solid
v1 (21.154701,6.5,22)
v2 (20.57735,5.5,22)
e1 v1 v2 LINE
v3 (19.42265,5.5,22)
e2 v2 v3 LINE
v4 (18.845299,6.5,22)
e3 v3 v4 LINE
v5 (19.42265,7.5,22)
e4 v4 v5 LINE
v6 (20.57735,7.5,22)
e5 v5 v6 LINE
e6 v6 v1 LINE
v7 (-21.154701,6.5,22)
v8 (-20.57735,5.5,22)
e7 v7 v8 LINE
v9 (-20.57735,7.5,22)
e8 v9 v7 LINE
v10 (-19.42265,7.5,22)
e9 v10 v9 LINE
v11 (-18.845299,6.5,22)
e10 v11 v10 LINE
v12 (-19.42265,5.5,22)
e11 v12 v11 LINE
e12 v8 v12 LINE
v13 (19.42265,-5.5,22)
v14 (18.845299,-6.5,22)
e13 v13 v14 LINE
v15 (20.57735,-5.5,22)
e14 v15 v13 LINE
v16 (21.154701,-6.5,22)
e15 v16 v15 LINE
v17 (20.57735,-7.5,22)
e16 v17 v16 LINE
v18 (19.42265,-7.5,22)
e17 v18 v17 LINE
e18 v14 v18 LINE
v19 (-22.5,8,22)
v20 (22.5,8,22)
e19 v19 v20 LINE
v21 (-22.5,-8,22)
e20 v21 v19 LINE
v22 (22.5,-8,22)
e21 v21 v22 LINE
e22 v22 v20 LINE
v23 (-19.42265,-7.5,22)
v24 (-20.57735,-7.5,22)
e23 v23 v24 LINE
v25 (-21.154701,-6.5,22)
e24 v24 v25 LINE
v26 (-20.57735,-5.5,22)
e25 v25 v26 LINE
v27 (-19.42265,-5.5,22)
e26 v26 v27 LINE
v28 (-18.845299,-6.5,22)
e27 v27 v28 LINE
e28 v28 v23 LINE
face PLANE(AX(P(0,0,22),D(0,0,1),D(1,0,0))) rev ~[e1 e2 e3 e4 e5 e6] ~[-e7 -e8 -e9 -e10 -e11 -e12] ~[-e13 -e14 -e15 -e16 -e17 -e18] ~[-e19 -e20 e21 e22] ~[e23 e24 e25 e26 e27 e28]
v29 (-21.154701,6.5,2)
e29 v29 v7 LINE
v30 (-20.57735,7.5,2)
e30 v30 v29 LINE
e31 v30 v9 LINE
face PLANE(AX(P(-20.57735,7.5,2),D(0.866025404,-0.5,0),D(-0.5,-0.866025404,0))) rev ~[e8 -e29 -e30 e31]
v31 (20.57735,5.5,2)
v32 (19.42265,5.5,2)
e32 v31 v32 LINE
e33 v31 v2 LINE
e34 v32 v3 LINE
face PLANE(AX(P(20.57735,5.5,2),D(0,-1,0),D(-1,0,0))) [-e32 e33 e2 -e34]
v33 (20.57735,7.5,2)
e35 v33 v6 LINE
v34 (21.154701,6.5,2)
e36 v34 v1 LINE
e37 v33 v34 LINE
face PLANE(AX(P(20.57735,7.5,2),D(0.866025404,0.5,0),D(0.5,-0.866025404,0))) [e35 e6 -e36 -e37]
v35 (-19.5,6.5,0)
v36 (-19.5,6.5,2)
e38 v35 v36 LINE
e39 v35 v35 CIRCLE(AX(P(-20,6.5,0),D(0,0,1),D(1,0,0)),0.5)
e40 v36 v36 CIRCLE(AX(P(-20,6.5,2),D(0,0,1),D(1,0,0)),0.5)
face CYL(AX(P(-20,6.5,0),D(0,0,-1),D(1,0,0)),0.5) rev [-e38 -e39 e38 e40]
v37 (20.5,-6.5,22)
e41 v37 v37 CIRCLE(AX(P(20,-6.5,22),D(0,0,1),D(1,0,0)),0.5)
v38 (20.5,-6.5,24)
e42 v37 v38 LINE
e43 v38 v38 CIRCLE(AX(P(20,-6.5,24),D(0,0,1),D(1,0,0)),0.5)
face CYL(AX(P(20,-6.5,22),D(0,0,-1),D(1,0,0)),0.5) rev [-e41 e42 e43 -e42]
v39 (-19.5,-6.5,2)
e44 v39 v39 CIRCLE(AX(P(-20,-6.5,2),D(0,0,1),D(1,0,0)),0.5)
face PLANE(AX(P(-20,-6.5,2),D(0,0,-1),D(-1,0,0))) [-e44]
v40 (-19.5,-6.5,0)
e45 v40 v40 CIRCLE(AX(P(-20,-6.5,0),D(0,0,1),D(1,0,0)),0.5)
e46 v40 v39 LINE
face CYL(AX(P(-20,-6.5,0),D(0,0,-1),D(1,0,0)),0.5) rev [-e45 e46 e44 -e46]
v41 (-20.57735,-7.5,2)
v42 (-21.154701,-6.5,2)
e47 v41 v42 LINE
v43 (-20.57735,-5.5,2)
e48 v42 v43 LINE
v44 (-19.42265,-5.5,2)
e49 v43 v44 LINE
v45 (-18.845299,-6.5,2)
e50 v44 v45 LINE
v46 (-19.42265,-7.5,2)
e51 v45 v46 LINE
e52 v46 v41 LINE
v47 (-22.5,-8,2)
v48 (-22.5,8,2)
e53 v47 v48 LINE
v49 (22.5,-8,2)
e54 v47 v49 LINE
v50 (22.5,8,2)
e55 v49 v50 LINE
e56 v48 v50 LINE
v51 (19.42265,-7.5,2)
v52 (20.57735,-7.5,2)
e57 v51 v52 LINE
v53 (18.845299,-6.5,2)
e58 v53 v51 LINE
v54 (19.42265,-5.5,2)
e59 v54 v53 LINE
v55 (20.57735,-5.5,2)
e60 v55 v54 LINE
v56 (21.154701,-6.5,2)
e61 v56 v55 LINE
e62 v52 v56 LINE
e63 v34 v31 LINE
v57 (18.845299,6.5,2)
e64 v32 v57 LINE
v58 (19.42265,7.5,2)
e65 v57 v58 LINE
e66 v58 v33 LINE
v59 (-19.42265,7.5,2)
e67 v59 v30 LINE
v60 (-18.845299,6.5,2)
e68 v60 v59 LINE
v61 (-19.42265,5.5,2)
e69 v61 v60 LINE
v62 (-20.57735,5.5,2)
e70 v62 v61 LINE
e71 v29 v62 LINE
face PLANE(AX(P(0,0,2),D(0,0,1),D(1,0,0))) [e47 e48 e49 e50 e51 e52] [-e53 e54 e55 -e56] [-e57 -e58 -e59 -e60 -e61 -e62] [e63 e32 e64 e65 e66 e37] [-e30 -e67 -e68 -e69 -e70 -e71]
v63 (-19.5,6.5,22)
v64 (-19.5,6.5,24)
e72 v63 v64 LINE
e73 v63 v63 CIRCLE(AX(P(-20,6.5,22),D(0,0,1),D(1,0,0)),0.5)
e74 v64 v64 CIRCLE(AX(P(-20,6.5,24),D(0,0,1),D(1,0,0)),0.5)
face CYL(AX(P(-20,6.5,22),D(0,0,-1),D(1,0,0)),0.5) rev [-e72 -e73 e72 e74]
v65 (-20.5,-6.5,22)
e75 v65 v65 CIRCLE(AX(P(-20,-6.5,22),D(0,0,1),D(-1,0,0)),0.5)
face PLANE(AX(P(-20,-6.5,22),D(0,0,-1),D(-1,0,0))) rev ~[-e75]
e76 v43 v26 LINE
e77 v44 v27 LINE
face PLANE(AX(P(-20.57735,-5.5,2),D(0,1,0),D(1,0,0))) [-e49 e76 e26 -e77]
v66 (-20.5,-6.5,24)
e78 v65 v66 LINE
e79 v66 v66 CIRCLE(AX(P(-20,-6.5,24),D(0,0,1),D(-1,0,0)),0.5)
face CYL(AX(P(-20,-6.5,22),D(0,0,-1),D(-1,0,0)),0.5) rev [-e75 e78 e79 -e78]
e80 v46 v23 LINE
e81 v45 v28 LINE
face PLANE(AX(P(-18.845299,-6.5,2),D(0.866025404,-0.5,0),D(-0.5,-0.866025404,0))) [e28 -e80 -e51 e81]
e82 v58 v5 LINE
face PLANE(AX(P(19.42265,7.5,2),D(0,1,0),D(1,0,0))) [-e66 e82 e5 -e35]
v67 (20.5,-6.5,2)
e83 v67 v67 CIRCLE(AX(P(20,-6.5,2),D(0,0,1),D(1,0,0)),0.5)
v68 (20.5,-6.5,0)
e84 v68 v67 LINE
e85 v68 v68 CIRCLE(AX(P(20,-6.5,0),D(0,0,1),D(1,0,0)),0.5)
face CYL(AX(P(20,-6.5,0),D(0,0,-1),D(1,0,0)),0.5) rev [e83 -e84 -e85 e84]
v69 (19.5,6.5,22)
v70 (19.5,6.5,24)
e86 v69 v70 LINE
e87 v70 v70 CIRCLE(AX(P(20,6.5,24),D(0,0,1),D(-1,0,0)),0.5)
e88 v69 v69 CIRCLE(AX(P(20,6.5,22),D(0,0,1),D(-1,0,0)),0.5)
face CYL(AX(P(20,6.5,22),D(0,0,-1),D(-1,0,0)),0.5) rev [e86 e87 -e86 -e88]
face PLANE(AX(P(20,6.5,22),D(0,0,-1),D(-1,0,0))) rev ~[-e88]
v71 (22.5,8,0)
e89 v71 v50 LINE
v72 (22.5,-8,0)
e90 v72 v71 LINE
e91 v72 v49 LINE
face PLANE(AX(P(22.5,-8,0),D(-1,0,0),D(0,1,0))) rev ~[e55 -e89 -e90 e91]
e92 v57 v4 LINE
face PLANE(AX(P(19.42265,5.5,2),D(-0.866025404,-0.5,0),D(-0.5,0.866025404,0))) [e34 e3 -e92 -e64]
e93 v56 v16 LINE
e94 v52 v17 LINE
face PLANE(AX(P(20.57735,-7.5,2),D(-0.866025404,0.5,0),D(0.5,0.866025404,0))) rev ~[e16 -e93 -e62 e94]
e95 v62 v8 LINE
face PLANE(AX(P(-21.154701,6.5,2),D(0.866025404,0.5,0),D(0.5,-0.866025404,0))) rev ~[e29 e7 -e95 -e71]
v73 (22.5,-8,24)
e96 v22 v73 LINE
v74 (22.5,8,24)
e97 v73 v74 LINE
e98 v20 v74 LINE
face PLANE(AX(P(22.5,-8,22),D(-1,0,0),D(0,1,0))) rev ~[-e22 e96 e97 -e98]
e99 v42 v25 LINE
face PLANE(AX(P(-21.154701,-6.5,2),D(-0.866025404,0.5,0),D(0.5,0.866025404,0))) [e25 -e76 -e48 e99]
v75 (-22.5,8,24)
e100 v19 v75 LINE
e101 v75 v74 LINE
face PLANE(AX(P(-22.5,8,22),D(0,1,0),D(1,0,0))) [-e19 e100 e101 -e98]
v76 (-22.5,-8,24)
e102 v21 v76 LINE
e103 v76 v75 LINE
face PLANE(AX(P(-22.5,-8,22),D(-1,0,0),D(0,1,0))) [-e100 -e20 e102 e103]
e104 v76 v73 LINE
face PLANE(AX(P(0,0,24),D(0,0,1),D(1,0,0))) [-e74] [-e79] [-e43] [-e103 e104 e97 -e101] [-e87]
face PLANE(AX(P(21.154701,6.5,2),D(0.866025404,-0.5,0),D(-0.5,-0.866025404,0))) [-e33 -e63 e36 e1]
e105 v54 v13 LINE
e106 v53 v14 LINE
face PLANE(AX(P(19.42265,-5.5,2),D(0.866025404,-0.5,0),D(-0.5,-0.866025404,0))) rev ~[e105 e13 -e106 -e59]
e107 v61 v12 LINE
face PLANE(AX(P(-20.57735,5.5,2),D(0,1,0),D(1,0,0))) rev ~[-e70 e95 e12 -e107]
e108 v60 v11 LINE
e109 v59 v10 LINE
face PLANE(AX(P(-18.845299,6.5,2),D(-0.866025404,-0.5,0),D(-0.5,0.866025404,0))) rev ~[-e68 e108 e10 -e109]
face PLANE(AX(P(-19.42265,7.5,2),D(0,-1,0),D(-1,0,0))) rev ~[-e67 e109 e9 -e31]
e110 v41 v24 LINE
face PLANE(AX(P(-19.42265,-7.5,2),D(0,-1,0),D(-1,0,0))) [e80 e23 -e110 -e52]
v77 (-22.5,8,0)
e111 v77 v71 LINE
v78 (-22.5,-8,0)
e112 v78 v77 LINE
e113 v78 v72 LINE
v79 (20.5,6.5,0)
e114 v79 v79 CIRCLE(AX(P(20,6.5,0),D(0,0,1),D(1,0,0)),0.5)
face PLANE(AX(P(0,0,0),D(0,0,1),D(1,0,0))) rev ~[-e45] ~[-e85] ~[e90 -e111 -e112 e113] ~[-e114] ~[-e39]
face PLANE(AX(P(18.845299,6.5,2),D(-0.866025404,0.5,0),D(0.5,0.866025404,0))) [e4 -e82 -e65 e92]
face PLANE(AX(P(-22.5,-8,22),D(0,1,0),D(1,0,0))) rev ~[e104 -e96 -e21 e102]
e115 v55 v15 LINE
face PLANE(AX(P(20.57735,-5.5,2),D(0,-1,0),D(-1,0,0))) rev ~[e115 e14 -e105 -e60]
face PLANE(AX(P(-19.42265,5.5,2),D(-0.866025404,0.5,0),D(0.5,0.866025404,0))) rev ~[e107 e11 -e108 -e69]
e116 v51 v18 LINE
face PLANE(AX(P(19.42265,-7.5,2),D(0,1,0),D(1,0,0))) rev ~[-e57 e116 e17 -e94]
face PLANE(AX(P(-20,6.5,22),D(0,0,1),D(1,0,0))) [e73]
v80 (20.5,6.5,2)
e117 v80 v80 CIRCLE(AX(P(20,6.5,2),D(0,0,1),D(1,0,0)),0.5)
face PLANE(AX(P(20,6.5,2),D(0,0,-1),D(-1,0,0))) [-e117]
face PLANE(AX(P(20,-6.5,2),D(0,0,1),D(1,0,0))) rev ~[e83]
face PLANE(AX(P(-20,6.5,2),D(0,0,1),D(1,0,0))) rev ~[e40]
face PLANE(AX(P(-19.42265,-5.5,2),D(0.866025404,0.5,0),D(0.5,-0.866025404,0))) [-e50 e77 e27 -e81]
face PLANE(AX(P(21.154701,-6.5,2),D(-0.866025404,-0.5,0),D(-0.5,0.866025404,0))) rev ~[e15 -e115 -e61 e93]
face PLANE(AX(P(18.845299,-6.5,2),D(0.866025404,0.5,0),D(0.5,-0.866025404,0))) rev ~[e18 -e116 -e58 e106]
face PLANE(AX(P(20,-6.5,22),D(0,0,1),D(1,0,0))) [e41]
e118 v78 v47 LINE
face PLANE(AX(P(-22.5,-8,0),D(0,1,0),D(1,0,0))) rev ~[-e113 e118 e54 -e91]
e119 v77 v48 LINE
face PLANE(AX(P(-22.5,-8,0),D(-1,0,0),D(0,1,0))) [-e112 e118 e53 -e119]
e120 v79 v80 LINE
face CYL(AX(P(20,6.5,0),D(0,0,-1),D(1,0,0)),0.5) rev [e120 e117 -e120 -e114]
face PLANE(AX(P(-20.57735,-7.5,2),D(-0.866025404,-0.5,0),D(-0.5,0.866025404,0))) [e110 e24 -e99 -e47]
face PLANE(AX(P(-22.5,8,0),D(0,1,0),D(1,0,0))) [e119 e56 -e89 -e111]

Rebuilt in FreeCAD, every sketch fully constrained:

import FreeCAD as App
import Part
import Sketcher
from FreeCAD import Vector
Q = App.Units.Quantity


def add_polygon(sketch, points):
    """Adds a closed chain of lines whose ends are joined by coincident constraints."""
    first, n = sketch.GeometryCount, len(points)
    for a, b in zip(points, points[1:] + points[:1]):
        sketch.addGeometry(Part.LineSegment(App.Vector(*a, 0), App.Vector(*b, 0)), False)
    for i in range(n):
        sketch.addConstraint(Sketcher.Constraint("Coincident", first + i, 2, first + (i + 1) % n, 1))

doc = App.newDocument("Part")
params = doc.addObject("Spreadsheet::Sheet", "Params")
for row, (alias, value) in enumerate([
    ("sketch1_diameter", "1 mm"),
    ("sketch1_width", "45 mm"),
    ("sketch1_height", "16 mm"),
    ("pad1_length", "2 mm"),
    ("pad2_length", "20 mm"),
    ("sketch3_diameter", "1 mm"),
    ("sketch3_width", "45 mm"),
    ("sketch3_height", "16 mm"),
    ("pad3_length", "2 mm"),
], start=1):
    params.set(f"A{row}", alias)
    params.set(f"B{row}", "=" + value)
    params.setAlias(f"B{row}", alias)

body = doc.addObject("PartDesign::Body", "Body")

# Sketch on XY plane
sketch1 = body.newObject("Sketcher::SketchObject", "Sketch")
sketch1.AttachmentSupport = (doc.getObject("XY_Plane"), [""])
sketch1.MapMode = "FlatFace"
add_polygon(sketch1, [(-22.5, 8), (-22.5, -8), (22.5, -8), (22.5, 8)])  # lines 0-3
sketch1.addGeometry(Part.Circle(Vector(-20, -6.5, 0), Vector(0, 0, 1), 0.5), False)  # 4
sketch1.addGeometry(Part.Circle(Vector(20, -6.5, 0), Vector(0, 0, 1), 0.5), False)  # 5
sketch1.addGeometry(Part.Circle(Vector(-20, 6.5, 0), Vector(0, 0, 1), 0.5), False)  # 6
sketch1.addGeometry(Part.Circle(Vector(20, 6.5, 0), Vector(0, 0, 1), 0.5), False)  # 7
sketch1.addConstraint(Sketcher.Constraint("Vertical", 0))
sketch1.addConstraint(Sketcher.Constraint("Horizontal", 1))
sketch1.addConstraint(Sketcher.Constraint("Vertical", 2))
sketch1.addConstraint(Sketcher.Constraint("Horizontal", 3))
sketch1.addConstraint(Sketcher.Constraint("Equal", 4, 5))
sketch1.addConstraint(Sketcher.Constraint("Equal", 5, 6))
sketch1.addConstraint(Sketcher.Constraint("Equal", 6, 7))
sketch1.addConstraint(Sketcher.Constraint("Symmetric", 5, 3, 6, 3, -1, 1))
sketch1.addConstraint(Sketcher.Constraint("Symmetric", 4, 3, 7, 3, -1, 1))
sketch1.addConstraint(Sketcher.Constraint("Symmetric", 0, 2, 2, 2, -1, 1))
sketch1.addConstraint(Sketcher.Constraint("Symmetric", 4, 3, 5, 3, -2))
sketch1.addConstraint(Sketcher.Constraint("Diameter", 4, 1.0))
sketch1.addConstraint(Sketcher.Constraint("DistanceX", 1, 1, 1, 2, 45.0))
sketch1.addConstraint(Sketcher.Constraint("DistanceY", 0, 2, 0, 1, 16.0))
sketch1.addConstraint(Sketcher.Constraint("DistanceX", 4, 3, -1, 1, 20.0))
sketch1.addConstraint(Sketcher.Constraint("DistanceY", 4, 3, 6, 3, 13.0))
sketch1.setExpression("Constraints[15]", "Params.sketch1_diameter")
sketch1.setExpression("Constraints[16]", "Params.sketch1_width")
sketch1.setExpression("Constraints[17]", "Params.sketch1_height")
pad1 = body.newObject("PartDesign::Pad", "Pad")
pad1.Profile = sketch1
pad1.setExpression("Length", "Params.pad1_length")

# Sketch on XY plane
sketch2 = body.newObject("Sketcher::SketchObject", "Sketch001")
sketch2.AttachmentSupport = (doc.getObject("XY_Plane"), [""])
sketch2.MapMode = "FlatFace"
sketch2.AttachmentOffset = App.Placement(Vector(0, 0, 2), App.Rotation())
add_polygon(sketch2, [(-18.845299, 6.5), (-19.42265, 7.5), (-20.57735, 7.5), (-21.154701, 6.5), (-20.57735, 5.5), (-19.42265, 5.5)])  # lines 0-5
add_polygon(sketch2, [(18.845299, 6.5), (19.42265, 5.5), (20.57735, 5.5), (21.154701, 6.5), (20.57735, 7.5), (19.42265, 7.5)])  # lines 6-11
add_polygon(sketch2, [(18.845299, -6.5), (19.42265, -7.5), (20.57735, -7.5), (21.154701, -6.5), (20.57735, -5.5), (19.42265, -5.5)])  # lines 12-17
add_polygon(sketch2, [(-18.845299, -6.5), (-19.42265, -5.5), (-20.57735, -5.5), (-21.154701, -6.5), (-20.57735, -7.5), (-19.42265, -7.5)])  # lines 18-23
sketch2.addConstraint(Sketcher.Constraint("Horizontal", 1))
sketch2.addConstraint(Sketcher.Constraint("Horizontal", 4))
sketch2.addConstraint(Sketcher.Constraint("Horizontal", 7))
sketch2.addConstraint(Sketcher.Constraint("Horizontal", 10))
sketch2.addConstraint(Sketcher.Constraint("Horizontal", 13))
sketch2.addConstraint(Sketcher.Constraint("Horizontal", 16))
sketch2.addConstraint(Sketcher.Constraint("Horizontal", 19))
sketch2.addConstraint(Sketcher.Constraint("Horizontal", 22))
sketch2.addConstraint(Sketcher.Constraint("Symmetric", 0, 2, 12, 2, -1, 1))
sketch2.addConstraint(Sketcher.Constraint("Symmetric", 2, 2, 14, 2, -1, 1))
sketch2.addConstraint(Sketcher.Constraint("Symmetric", 3, 2, 15, 2, -1, 1))
sketch2.addConstraint(Sketcher.Constraint("Symmetric", 5, 2, 17, 2, -1, 1))
sketch2.addConstraint(Sketcher.Constraint("Symmetric", 6, 2, 18, 2, -1, 1))
sketch2.addConstraint(Sketcher.Constraint("Symmetric", 8, 2, 20, 2, -1, 1))
sketch2.addConstraint(Sketcher.Constraint("Symmetric", 9, 2, 21, 2, -1, 1))
sketch2.addConstraint(Sketcher.Constraint("Symmetric", 11, 2, 23, 2, -1, 1))
sketch2.addConstraint(Sketcher.Constraint("Symmetric", 4, 2, 6, 2, -2))
sketch2.addConstraint(Sketcher.Constraint("Symmetric", 2, 2, 8, 2, -2))
sketch2.addConstraint(Sketcher.Constraint("Symmetric", 1, 2, 9, 2, -2))
sketch2.addConstraint(Sketcher.Constraint("Symmetric", 5, 2, 11, 2, -2))
sketch2.addConstraint(Sketcher.Constraint("Parallel", 0, 3))
sketch2.addConstraint(Sketcher.Constraint("Parallel", 2, 5))
sketch2.addConstraint(Sketcher.Constraint("Parallel", 3, 6))
sketch2.addConstraint(Sketcher.Constraint("Parallel", 5, 8))
sketch2.addConstraint(Sketcher.Constraint("Parallel", 8, 11))
sketch2.addConstraint(Sketcher.Constraint("Parallel", 11, 14))
sketch2.addConstraint(Sketcher.Constraint("Parallel", 14, 17))
sketch2.addConstraint(Sketcher.Constraint("Parallel", 17, 20))
sketch2.addConstraint(Sketcher.Constraint("Parallel", 20, 23))
sketch2.addConstraint(Sketcher.Constraint("Horizontal", 2, 2, 5, 2))
sketch2.addConstraint(Sketcher.Constraint("Vertical", 1, 2, 3, 2))
sketch2.addConstraint(Sketcher.Constraint("Angle", 0, Q("120 deg")))
sketch2.addConstraint(Sketcher.Constraint("DistanceY", 2, 2, 1, 2, 1.0))
sketch2.addConstraint(Sketcher.Constraint("DistanceX", 3, 2, 6, 2, 40.0))
sketch2.addConstraint(Sketcher.Constraint("DistanceY", 12, 2, 6, 2, 13.0))
sketch2.addConstraint(Sketcher.Constraint("DistanceX", 1, 2, 1, 1, 1.154701))
pad2 = body.newObject("PartDesign::Pad", "Pad001")
pad2.Profile = sketch2
pad2.setExpression("Length", "Params.pad2_length")

# Sketch on XY plane
sketch3 = body.newObject("Sketcher::SketchObject", "Sketch002")
sketch3.AttachmentSupport = (doc.getObject("XY_Plane"), [""])
sketch3.MapMode = "FlatFace"
sketch3.AttachmentOffset = App.Placement(Vector(0, 0, 22), App.Rotation())
add_polygon(sketch3, [(-22.5, 8), (-22.5, -8), (22.5, -8), (22.5, 8)])  # lines 0-3
sketch3.addGeometry(Part.Circle(Vector(-20, -6.5, 0), Vector(0, 0, 1), 0.5), False)  # 4
sketch3.addGeometry(Part.Circle(Vector(20, -6.5, 0), Vector(0, 0, 1), 0.5), False)  # 5
sketch3.addGeometry(Part.Circle(Vector(-20, 6.5, 0), Vector(0, 0, 1), 0.5), False)  # 6
sketch3.addGeometry(Part.Circle(Vector(20, 6.5, 0), Vector(0, 0, 1), 0.5), False)  # 7
sketch3.addConstraint(Sketcher.Constraint("Vertical", 0))
sketch3.addConstraint(Sketcher.Constraint("Horizontal", 1))
sketch3.addConstraint(Sketcher.Constraint("Vertical", 2))
sketch3.addConstraint(Sketcher.Constraint("Horizontal", 3))
sketch3.addConstraint(Sketcher.Constraint("Equal", 4, 5))
sketch3.addConstraint(Sketcher.Constraint("Equal", 5, 6))
sketch3.addConstraint(Sketcher.Constraint("Equal", 6, 7))
sketch3.addConstraint(Sketcher.Constraint("Symmetric", 5, 3, 6, 3, -1, 1))
sketch3.addConstraint(Sketcher.Constraint("Symmetric", 4, 3, 7, 3, -1, 1))
sketch3.addConstraint(Sketcher.Constraint("Symmetric", 0, 2, 2, 2, -1, 1))
sketch3.addConstraint(Sketcher.Constraint("Symmetric", 4, 3, 5, 3, -2))
sketch3.addConstraint(Sketcher.Constraint("Diameter", 4, 1.0))
sketch3.addConstraint(Sketcher.Constraint("DistanceX", 1, 1, 1, 2, 45.0))
sketch3.addConstraint(Sketcher.Constraint("DistanceY", 0, 2, 0, 1, 16.0))
sketch3.addConstraint(Sketcher.Constraint("DistanceX", 4, 3, -1, 1, 20.0))
sketch3.addConstraint(Sketcher.Constraint("DistanceY", 4, 3, 6, 3, 13.0))
sketch3.setExpression("Constraints[15]", "Params.sketch3_diameter")
sketch3.setExpression("Constraints[16]", "Params.sketch3_width")
sketch3.setExpression("Constraints[17]", "Params.sketch3_height")
pad3 = body.newObject("PartDesign::Pad", "Pad002")
pad3.Profile = sketch3
pad3.setExpression("Length", "Params.pad3_length")

doc.recompute()
